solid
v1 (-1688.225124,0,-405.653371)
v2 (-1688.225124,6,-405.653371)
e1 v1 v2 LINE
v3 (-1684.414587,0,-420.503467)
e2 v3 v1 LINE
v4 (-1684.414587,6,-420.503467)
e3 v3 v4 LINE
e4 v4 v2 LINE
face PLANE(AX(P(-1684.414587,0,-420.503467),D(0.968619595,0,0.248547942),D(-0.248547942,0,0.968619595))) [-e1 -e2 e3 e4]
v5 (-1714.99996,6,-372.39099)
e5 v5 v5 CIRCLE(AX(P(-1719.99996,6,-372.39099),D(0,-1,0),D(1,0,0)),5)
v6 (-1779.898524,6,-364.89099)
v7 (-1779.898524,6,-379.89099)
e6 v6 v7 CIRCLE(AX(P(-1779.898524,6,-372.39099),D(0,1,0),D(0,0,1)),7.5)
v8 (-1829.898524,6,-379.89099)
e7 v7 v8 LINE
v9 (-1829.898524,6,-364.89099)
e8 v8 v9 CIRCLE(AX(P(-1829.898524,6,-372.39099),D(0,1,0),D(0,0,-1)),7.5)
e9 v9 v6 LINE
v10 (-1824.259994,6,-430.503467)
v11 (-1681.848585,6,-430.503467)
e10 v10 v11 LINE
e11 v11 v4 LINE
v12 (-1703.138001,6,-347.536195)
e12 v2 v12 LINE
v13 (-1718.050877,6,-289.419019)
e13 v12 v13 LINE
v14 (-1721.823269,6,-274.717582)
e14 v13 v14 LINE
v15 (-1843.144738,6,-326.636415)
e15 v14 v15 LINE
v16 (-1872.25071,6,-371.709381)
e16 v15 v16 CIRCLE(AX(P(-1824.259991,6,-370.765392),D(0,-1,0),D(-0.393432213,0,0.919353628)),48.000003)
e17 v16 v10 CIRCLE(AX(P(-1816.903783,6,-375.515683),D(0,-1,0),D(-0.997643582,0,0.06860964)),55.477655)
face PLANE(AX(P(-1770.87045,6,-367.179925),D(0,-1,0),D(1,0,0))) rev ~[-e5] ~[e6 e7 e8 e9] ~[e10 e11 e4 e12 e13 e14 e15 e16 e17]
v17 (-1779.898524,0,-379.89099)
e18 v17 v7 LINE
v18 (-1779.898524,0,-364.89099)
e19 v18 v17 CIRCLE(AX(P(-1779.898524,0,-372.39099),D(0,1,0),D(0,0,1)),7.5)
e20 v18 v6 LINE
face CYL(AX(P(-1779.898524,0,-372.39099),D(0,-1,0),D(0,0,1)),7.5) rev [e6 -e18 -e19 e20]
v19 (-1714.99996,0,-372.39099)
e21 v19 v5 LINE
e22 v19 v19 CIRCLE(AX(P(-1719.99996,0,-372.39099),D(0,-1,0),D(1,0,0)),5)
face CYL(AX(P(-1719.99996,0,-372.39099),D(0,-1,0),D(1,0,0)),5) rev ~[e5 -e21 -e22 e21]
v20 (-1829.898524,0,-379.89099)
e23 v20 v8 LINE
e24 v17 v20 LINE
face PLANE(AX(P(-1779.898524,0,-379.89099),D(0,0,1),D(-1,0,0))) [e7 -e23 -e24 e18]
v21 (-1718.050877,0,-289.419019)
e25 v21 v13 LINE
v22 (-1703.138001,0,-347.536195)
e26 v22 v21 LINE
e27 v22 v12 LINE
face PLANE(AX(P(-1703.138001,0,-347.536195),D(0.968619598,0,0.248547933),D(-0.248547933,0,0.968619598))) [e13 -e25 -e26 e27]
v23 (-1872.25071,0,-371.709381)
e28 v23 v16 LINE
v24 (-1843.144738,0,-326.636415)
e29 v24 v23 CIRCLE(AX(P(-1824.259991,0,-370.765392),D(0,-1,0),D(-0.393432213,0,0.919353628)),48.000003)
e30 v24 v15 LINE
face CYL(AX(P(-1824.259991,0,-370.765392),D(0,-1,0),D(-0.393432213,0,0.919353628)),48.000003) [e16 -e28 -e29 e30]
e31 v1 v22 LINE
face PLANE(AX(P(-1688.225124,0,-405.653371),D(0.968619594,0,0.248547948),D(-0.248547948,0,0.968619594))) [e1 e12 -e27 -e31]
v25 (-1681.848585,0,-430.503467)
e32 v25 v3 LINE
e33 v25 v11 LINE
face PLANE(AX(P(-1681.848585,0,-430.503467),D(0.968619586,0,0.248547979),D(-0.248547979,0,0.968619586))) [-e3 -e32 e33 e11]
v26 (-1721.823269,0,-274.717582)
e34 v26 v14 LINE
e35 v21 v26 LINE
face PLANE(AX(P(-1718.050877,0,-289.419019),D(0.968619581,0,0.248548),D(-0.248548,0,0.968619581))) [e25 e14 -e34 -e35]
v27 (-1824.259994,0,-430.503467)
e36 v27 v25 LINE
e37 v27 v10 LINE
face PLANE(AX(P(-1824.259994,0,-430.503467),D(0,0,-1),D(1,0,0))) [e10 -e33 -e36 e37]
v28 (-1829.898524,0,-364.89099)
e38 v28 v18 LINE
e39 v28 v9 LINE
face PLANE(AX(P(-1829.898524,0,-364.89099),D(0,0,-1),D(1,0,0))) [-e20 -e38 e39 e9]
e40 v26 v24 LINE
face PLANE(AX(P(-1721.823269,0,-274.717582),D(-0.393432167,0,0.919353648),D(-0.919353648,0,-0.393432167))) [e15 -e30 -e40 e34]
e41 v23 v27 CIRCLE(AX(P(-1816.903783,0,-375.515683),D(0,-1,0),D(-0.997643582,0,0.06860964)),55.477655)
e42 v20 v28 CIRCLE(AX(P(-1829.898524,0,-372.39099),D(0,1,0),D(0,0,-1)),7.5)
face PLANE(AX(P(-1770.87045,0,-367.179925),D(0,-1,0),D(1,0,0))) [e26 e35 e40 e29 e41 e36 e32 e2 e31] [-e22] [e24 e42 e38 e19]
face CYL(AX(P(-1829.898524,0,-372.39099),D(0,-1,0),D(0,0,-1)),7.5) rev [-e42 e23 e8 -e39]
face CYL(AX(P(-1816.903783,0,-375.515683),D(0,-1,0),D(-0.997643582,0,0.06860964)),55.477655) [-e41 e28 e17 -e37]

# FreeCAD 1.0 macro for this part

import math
import FreeCAD as App
import Part
import Sketcher
from FreeCAD import Vector
Q = App.Units.Quantity

doc = App.newDocument("Part")
body = doc.addObject("PartDesign::Body", "Body")

sketch1 = doc.addObject("Sketcher::SketchObject", "Sketch")
body.addObject(sketch1)
sketch1.AttachmentSupport = (doc.XZ_Plane, [""])
sketch1.MapMode = "FlatFace"
sketch1.addGeometry(Part.LineSegment(Vector(-1703.138001, -347.536195, 0), Vector(-1718.050877, -289.419019, 0)), False)
sketch1.addGeometry(Part.LineSegment(Vector(-1718.050877, -289.419019, 0), Vector(-1721.823269, -274.717582, 0)), False)
sketch1.addGeometry(Part.LineSegment(Vector(-1721.823269, -274.717582, 0), Vector(-1843.144738, -326.636415, 0)), False)
sketch1.addGeometry(Part.ArcOfCircle(Part.Circle(Vector(-1824.259991, -370.765392, 0), Vector(0, 0, 1), 48.000003), math.radians(113.168231), math.radians(181.126877)), False)
sketch1.addGeometry(Part.ArcOfCircle(Part.Circle(Vector(-1816.903783, -375.515683, 0), Vector(0, 0, 1), 55.477655), math.radians(176.065867), math.radians(262.380269)), False)
sketch1.addGeometry(Part.LineSegment(Vector(-1824.259994, -430.503467, 0), Vector(-1681.848585, -430.503467, 0)), False)
sketch1.addGeometry(Part.LineSegment(Vector(-1681.848585, -430.503467, 0), Vector(-1684.414587, -420.503467, 0)), False)
sketch1.addGeometry(Part.LineSegment(Vector(-1684.414587, -420.503467, 0), Vector(-1688.225124, -405.653371, 0)), False)
sketch1.addGeometry(Part.LineSegment(Vector(-1688.225124, -405.653371, 0), Vector(-1703.138001, -347.536195, 0)), False)
sketch1.addGeometry(Part.LineSegment(Vector(-1779.898524, -379.89099, 0), Vector(-1829.898524, -379.89099, 0)), False)
sketch1.addGeometry(Part.ArcOfCircle(Part.Circle(Vector(-1829.898524, -372.39099, 0), Vector(0, 0, 1), 7.5), math.radians(90), math.radians(270)), False)
sketch1.addGeometry(Part.LineSegment(Vector(-1829.898524, -364.89099, 0), Vector(-1779.898524, -364.89099, 0)), False)
sketch1.addGeometry(Part.ArcOfCircle(Part.Circle(Vector(-1779.898524, -372.39099, 0), Vector(0, 0, 1), 7.5), math.radians(-90), math.radians(90)), False)
sketch1.addGeometry(Part.Circle(Vector(-1719.99996, -372.39099, 0), Vector(0, 0, 1), 5), False)
sketch1.addConstraint(Sketcher.Constraint("Coincident", 0, 2, 1, 1))
sketch1.addConstraint(Sketcher.Constraint("Coincident", 1, 2, 2, 1))
sketch1.addConstraint(Sketcher.Constraint("Coincident", 2, 2, 3, 1))
sketch1.addConstraint(Sketcher.Constraint("Coincident", 3, 2, 4, 1))
sketch1.addConstraint(Sketcher.Constraint("Coincident", 4, 2, 5, 1))
sketch1.addConstraint(Sketcher.Constraint("Coincident", 5, 2, 6, 1))
sketch1.addConstraint(Sketcher.Constraint("Coincident", 6, 2, 7, 1))
sketch1.addConstraint(Sketcher.Constraint("Coincident", 7, 2, 8, 1))
sketch1.addConstraint(Sketcher.Constraint("Coincident", 8, 2, 0, 1))
sketch1.addConstraint(Sketcher.Constraint("Coincident", 9, 2, 10, 2))
sketch1.addConstraint(Sketcher.Constraint("Coincident", 10, 1, 11, 1))
sketch1.addConstraint(Sketcher.Constraint("Coincident", 11, 2, 12, 2))
sketch1.addConstraint(Sketcher.Constraint("Coincident", 12, 1, 9, 1))
sketch1.addConstraint(Sketcher.Constraint("Horizontal", 5))
sketch1.addConstraint(Sketcher.Constraint("Horizontal", 9))
sketch1.addConstraint(Sketcher.Constraint("Horizontal", 11))
sketch1.addConstraint(Sketcher.Constraint("Diameter", 13, Q("10 mm")))
sketch1.addConstraint(Sketcher.Constraint("Radius", 10, Q("7.5 mm")))
sketch1.addConstraint(Sketcher.Constraint("DistanceX", 9, 2, 9, 1, Q("50 mm")))
sketch1.addConstraint(Sketcher.Constraint("DistanceX", 11, 1, 11, 2, Q("50 mm")))
sketch1.addConstraint(Sketcher.Constraint("Distance", 0, Q("60 mm")))
sketch1.addConstraint(Sketcher.Constraint("Distance", 8, Q("60 mm")))
sketch1.addConstraint(Sketcher.Constraint("DistanceX", 10, 3, 12, 3, Q("50 mm")))
sketch1.addConstraint(Sketcher.Constraint("DistanceY", 5, 2, 6, 2, Q("10 mm")))
sketch1.addConstraint(Sketcher.Constraint("DistanceX", 9, 2, 12, 3, Q("50 mm")))
sketch1.addConstraint(Sketcher.Constraint("DistanceX", 10, 3, 11, 2, Q("50 mm")))
sketch1.addConstraint(Sketcher.Constraint("DistanceX", 8, 2, -1, 1, Q("1703.138001 mm")))
sketch1.addConstraint(Sketcher.Constraint("Radius", 3, Q("48.000003 mm")))
sketch1.addConstraint(Sketcher.Constraint("Radius", 4, Q("55.477655 mm")))
sketch1.addConstraint(Sketcher.Constraint("DistanceX", 5, 1, 5, 2, Q("142.411409 mm")))
sketch1.addConstraint(Sketcher.Constraint("DistanceY", 10, 3, 3, 3, Q("1.625598 mm")))
sketch1.addConstraint(Sketcher.Constraint("DistanceY", 13, 3, 3, 3, Q("1.625598 mm")))
sketch1.addConstraint(Sketcher.Constraint("DistanceY", 4, 3, 1, 2, Q("100.798101 mm")))
sketch1.addConstraint(Sketcher.Constraint("DistanceY", 4, 3, 3, 2, Q("3.806302 mm")))
sketch1.addConstraint(Sketcher.Constraint("DistanceX", 4, 3, 5, 2, Q("135.055198 mm")))
sketch1.addConstraint(Sketcher.Constraint("DistanceX", 12, 3, 7, 2, Q("91.6734 mm")))
sketch1.addConstraint(Sketcher.Constraint("Distance", 1, Q("15.17772 mm")))
sketch1.addConstraint(Sketcher.Constraint("Distance", 6, Q("10.32397 mm")))
sketch1.addConstraint(Sketcher.Constraint("DistanceX", 3, 3, -1, 1, Q("1824.259991 mm")))
sketch1.addConstraint(Sketcher.Constraint("DistanceY", 3, 3, -1, 1, Q("370.765392 mm")))
sketch1.addConstraint(Sketcher.Constraint("DistanceX", 13, 3, -1, 1, Q("1719.99996 mm")))
sketch1.addConstraint(Sketcher.Constraint("DistanceY", 0, 2, -1, 1, Q("289.419019 mm")))
sketch1.addConstraint(Sketcher.Constraint("DistanceX", 1, 2, -1, 1, Q("1721.823269 mm")))
sketch1.addConstraint(Sketcher.Constraint("DistanceY", 1, 2, -1, 1, Q("274.717582 mm")))
sketch1.addConstraint(Sketcher.Constraint("DistanceX", 2, 2, -1, 1, Q("1843.144738 mm")))
sketch1.addConstraint(Sketcher.Constraint("DistanceY", 7, 2, -1, 1, Q("405.653371 mm")))
pad1 = doc.addObject("PartDesign::Pad", "Pad")
body.addObject(pad1)
pad1.Profile = sketch1
pad1.Length = 6
pad1.Reversed = True

doc.recompute()
